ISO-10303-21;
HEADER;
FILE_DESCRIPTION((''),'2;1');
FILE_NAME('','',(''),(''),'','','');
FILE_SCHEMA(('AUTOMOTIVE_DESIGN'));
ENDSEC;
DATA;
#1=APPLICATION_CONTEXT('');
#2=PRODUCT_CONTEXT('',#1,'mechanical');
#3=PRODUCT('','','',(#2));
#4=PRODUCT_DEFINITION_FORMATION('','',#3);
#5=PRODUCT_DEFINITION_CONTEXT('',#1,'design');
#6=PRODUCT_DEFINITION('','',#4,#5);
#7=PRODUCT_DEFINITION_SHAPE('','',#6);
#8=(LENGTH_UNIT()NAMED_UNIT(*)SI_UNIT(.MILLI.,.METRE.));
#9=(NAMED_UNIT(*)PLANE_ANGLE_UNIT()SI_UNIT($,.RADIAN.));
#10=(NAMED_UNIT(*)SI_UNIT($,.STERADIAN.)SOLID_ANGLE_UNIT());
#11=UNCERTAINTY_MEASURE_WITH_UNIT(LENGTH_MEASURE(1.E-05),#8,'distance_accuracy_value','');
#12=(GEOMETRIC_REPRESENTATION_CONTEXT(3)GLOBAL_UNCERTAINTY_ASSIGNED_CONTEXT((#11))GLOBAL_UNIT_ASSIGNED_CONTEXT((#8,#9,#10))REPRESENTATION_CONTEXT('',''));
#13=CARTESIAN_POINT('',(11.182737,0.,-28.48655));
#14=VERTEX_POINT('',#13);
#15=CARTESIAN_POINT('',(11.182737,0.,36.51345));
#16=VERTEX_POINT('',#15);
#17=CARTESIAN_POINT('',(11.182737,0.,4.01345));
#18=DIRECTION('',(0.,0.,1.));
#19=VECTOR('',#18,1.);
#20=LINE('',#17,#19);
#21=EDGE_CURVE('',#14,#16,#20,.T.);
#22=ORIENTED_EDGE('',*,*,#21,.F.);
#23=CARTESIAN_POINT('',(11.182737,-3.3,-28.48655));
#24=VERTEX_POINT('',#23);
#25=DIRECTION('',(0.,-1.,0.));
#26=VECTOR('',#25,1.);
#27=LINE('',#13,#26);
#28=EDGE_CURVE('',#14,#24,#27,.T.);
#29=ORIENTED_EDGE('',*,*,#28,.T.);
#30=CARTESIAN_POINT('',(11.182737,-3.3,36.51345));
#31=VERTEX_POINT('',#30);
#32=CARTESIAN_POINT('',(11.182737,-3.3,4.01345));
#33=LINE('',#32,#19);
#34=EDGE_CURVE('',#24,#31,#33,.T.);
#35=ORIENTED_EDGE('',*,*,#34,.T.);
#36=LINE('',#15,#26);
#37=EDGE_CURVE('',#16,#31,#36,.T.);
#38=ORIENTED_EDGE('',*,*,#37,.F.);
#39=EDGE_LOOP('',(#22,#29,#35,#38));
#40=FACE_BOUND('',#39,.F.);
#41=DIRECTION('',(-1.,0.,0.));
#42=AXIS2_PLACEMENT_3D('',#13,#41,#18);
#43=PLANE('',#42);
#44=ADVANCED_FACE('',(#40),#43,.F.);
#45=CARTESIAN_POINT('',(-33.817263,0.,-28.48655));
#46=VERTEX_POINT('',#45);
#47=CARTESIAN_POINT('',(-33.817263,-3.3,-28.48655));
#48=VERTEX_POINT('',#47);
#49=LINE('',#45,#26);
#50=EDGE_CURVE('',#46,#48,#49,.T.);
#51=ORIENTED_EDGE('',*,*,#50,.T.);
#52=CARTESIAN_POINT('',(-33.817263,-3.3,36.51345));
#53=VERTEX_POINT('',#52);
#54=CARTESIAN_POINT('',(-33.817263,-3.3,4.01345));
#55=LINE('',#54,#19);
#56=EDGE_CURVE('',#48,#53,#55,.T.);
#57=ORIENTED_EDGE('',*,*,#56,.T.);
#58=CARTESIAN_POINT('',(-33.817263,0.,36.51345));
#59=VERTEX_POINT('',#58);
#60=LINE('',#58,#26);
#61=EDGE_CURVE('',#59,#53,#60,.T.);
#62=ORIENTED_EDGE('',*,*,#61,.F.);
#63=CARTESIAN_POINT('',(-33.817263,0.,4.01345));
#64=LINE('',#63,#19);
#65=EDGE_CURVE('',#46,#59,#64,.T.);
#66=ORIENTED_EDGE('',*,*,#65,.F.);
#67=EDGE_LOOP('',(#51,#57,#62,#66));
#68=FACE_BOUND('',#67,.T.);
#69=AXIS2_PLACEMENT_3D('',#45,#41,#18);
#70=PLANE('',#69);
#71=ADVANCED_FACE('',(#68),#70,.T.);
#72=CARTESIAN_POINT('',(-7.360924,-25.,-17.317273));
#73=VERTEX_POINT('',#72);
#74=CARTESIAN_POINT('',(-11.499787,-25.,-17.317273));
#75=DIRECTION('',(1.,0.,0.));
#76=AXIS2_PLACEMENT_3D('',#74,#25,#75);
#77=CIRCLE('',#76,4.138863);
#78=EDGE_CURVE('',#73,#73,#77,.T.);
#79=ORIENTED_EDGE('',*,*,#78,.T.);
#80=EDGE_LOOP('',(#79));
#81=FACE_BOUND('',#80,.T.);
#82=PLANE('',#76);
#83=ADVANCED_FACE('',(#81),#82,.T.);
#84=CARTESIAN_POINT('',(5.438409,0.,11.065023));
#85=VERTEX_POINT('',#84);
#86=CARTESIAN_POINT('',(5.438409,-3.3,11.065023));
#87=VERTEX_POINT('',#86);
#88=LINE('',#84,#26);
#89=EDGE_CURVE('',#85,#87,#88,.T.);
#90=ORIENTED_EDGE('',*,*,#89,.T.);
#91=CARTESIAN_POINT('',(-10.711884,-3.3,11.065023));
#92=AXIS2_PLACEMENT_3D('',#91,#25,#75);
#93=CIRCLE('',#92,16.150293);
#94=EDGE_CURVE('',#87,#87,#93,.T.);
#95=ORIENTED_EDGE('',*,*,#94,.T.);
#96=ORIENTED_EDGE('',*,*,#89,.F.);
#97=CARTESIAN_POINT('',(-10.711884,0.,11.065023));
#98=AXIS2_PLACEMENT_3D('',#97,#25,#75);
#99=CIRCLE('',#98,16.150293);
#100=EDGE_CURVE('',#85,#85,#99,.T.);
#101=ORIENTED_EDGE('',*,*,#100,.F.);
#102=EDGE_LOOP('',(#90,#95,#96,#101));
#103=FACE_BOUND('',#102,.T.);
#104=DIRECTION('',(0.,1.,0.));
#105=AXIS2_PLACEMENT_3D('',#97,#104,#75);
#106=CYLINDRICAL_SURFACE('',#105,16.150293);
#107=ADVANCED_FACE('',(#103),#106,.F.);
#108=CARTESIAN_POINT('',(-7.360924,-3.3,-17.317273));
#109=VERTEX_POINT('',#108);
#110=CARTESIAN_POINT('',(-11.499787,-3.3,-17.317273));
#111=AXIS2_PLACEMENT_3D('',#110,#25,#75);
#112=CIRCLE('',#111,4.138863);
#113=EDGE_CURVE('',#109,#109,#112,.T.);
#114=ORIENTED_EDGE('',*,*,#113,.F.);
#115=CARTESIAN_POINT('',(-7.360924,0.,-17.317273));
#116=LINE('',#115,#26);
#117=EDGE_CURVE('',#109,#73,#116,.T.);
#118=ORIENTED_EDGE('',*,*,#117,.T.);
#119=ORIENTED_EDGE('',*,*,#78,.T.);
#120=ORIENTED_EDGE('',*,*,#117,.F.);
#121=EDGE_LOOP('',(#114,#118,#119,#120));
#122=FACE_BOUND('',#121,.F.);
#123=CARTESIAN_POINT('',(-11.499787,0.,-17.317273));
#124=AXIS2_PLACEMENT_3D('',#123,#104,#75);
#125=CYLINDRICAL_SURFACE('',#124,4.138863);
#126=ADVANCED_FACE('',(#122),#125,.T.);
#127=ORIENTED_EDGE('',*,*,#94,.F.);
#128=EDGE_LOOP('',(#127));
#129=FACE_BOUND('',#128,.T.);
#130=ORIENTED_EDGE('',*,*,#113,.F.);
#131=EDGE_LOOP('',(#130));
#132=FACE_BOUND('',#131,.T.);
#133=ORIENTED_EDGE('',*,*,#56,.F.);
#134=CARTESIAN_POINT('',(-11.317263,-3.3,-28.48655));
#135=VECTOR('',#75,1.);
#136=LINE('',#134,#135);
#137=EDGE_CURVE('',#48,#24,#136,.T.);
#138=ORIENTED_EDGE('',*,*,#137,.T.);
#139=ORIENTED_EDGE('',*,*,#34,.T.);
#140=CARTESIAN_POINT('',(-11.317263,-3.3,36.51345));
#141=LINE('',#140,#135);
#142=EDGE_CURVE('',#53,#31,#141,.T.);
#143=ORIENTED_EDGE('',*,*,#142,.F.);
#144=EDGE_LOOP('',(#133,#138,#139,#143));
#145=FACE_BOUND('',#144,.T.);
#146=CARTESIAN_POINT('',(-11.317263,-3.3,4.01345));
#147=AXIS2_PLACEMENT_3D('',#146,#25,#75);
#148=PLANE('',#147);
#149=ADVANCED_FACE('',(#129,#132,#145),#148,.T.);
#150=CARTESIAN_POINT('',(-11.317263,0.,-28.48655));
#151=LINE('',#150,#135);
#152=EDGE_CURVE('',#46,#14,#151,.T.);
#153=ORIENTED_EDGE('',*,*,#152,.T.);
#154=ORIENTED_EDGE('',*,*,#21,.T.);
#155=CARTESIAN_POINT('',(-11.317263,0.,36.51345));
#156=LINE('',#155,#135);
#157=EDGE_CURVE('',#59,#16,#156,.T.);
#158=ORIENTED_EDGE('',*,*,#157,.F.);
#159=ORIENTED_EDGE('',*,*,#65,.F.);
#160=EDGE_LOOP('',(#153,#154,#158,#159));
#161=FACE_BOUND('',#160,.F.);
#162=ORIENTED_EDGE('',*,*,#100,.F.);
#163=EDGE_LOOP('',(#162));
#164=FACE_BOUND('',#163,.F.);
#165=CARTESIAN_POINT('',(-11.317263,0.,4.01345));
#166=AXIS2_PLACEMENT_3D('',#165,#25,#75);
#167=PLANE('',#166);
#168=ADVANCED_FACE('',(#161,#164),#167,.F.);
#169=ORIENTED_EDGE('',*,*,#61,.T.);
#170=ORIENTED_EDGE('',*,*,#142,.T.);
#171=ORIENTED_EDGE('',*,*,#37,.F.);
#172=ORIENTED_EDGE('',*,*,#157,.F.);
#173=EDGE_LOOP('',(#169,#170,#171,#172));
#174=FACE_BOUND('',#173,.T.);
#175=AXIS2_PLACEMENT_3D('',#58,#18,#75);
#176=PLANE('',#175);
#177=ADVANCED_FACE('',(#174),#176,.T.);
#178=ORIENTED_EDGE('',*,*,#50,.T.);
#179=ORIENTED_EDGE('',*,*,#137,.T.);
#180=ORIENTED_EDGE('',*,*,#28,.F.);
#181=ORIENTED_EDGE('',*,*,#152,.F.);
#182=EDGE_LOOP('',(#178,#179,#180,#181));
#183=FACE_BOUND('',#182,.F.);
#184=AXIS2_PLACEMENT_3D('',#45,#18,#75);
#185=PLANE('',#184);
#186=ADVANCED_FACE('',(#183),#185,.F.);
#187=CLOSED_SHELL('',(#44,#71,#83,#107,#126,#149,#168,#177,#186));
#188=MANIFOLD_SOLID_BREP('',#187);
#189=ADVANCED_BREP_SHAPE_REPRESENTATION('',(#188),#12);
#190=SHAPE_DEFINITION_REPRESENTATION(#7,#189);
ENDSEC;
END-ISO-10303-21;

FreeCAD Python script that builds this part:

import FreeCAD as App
import Part
import Sketcher
from FreeCAD import Vector


def add_polygon(sketch, points):
    """Adds a closed chain of lines whose ends are joined by coincident constraints."""
    first, n = sketch.GeometryCount, len(points)
    for a, b in zip(points, points[1:] + points[:1]):
        sketch.addGeometry(Part.LineSegment(App.Vector(*a, 0), App.Vector(*b, 0)), False)
    for i in range(n):
        sketch.addConstraint(Sketcher.Constraint("Coincident", first + i, 2, first + (i + 1) % n, 1))

doc = App.newDocument("Part")
body = doc.addObject("PartDesign::Body", "Body")

sketch1 = body.newObject("Sketcher::SketchObject", "Sketch")
sketch1.AttachmentSupport = (doc.getObject("XZ_Plane"), [""])
sketch1.MapMode = "FlatFace"
sketch1.addGeometry(Part.Circle(Vector(-11.499787, -17.317273, 0), Vector(0, 0, 1), 4.138863), False)
sketch1.addConstraint([
    Sketcher.Constraint("Diameter", 0, 8.277726),
    Sketcher.Constraint("DistanceX", 0, 3, -1, 1, 11.499787),
    Sketcher.Constraint("DistanceY", 0, 3, -1, 1, 17.317273),
])
pad1 = body.newObject("PartDesign::Pad", "Pad")
pad1.Profile = sketch1
pad1.Length = 25

sketch2 = body.newObject("Sketcher::SketchObject", "Sketch001")
sketch2.AttachmentSupport = (doc.getObject("XZ_Plane"), [""])
sketch2.MapMode = "FlatFace"
add_polygon(sketch2, [(-33.817263, 36.51345), (-33.817263, -28.48655), (11.182737, -28.48655), (11.182737, 36.51345)])
sketch2.addGeometry(Part.Circle(Vector(-11.499787, -17.317273, 0), Vector(0, 0, 1), 4.138863), False)
sketch2.addGeometry(Part.Circle(Vector(-10.711884, 11.065023, 0), Vector(0, 0, 1), 16.150293), False)
sketch2.addConstraint([
    Sketcher.Constraint("Vertical", 0),
    Sketcher.Constraint("Horizontal", 1),
    Sketcher.Constraint("Vertical", 2),
    Sketcher.Constraint("Horizontal", 3),
    Sketcher.Constraint("DistanceX", 1, 1, 1, 2, 45.0),
    Sketcher.Constraint("DistanceY", 0, 2, 0, 1, 65.0),
    Sketcher.Constraint("Diameter", 4, 8.277726),
    Sketcher.Constraint("Diameter", 5, 32.300586),
    Sketcher.Constraint("DistanceY", 0, 2, -1, 1, 28.48655),
    Sketcher.Constraint("DistanceX", 0, 2, 5, 3, 23.105379),
    Sketcher.Constraint("DistanceX", 4, 3, -1, 1, 11.499787),
    Sketcher.Constraint("DistanceY", 4, 3, -1, 1, 17.317273),
    Sketcher.Constraint("DistanceX", 5, 3, -1, 1, 10.711884),
    Sketcher.Constraint("DistanceY", -1, 1, 5, 3, 11.065023),
])
pad2 = body.newObject("PartDesign::Pad", "Pad001")
pad2.Profile = sketch2
pad2.Length = 3.3

doc.recompute()
